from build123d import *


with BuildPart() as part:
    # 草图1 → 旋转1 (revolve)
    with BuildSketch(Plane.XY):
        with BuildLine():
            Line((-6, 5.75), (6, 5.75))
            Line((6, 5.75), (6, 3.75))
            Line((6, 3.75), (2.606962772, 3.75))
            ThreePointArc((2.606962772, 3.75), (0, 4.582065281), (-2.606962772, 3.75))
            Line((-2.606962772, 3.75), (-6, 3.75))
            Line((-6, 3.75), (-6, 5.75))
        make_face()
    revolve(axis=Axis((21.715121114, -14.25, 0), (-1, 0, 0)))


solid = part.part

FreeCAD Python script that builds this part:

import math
import FreeCAD as App
import Part
import Sketcher

V = App.Vector

doc = App.newDocument("Part")
params = doc.addObject("Spreadsheet::Sheet", "Params")
for row, (alias, value) in enumerate([
    ("sketch1_radius", "4.5 mm"),
    ("sketch1_width", "12 mm"),
    ("sketch1_height", "2 mm"),
    ("revolution_angle", "360 deg"),
], start=1):
    params.set(f"A{row}", alias)
    params.set(f"B{row}", "=" + value)
    params.setAlias(f"B{row}", alias)

body = doc.addObject("PartDesign::Body", "Body")

# Sketch on XY plane
sketch1 = doc.addObject("Sketcher::SketchObject", "Sketch")
body.addObject(sketch1)
sketch1.AttachmentSupport = (doc.XY_Plane, [""])
sketch1.MapMode = "FlatFace"
sketch1.addGeometry([
    Part.LineSegment(V(6, 5.8, 0), V(-6, 5.8, 0)),  # 0
    Part.LineSegment(V(-6, 5.8, 0), V(-6, 3.8, 0)),  # 1
    Part.LineSegment(V(-6, 3.8, 0), V(-2.6, 3.8, 0)),  # 2
    Part.ArcOfCircle(Part.Circle(V(0, 0.1, 0), V(0, 0, 1), 4.5), math.radians(55), math.radians(125)),  # 3
    Part.LineSegment(V(2.6, 3.8, 0), V(6, 3.8, 0)),  # 4
    Part.LineSegment(V(6, 3.8, 0), V(6, 5.8, 0)),  # 5
], False)
sketch1.addGeometry(Part.LineSegment(V(6, -14.2, 0), V(-6, -14.2, 0)), True)  # axis
sketch1.addConstraint([
    Sketcher.Constraint("Coincident", 0, 2, 1, 1),
    Sketcher.Constraint("Coincident", 1, 2, 2, 1),
    Sketcher.Constraint("Coincident", 2, 2, 3, 2),
    Sketcher.Constraint("Coincident", 3, 1, 4, 1),
    Sketcher.Constraint("Coincident", 4, 2, 5, 1),
    Sketcher.Constraint("Coincident", 5, 2, 0, 1),
    Sketcher.Constraint("Horizontal", 0),
    Sketcher.Constraint("Vertical", 1),
    Sketcher.Constraint("Horizontal", 2),
    Sketcher.Constraint("Horizontal", 4),
    Sketcher.Constraint("Vertical", 5),
    Sketcher.Constraint("Horizontal", 6),
    Sketcher.Constraint("Symmetric", 2, 2, 3, 1, -2),
    Sketcher.Constraint("Vertical", 5, 2, 6, 1),
    Sketcher.Constraint("Vertical", 1, 2, 6, 2),
    Sketcher.Constraint("Equal", 2, 4),
    Sketcher.Constraint("Radius", 3, 4.5),
    Sketcher.Constraint("DistanceX", 0, 2, 0, 1, 12.0),
    Sketcher.Constraint("DistanceY", 1, 2, 1, 1, 2.0),
    Sketcher.Constraint("DistanceY", 6, 1, 4, 2, 18.0),
    Sketcher.Constraint("DistanceY", -1, 1, 0, 2, 5.75),
    Sketcher.Constraint("DistanceX", 2, 1, 2, 2, 3.393037),
])
sketch1.setExpression("Constraints[16]", "Params.sketch1_radius")
sketch1.setExpression("Constraints[17]", "Params.sketch1_width")
sketch1.setExpression("Constraints[18]", "Params.sketch1_height")
revolution = doc.addObject("PartDesign::Revolution", "Revolution")
body.addObject(revolution)
revolution.Profile = sketch1
revolution.ReferenceAxis = (sketch1, ["Axis0"])
revolution.setExpression("Angle", "Params.revolution_angle")

doc.recompute()
